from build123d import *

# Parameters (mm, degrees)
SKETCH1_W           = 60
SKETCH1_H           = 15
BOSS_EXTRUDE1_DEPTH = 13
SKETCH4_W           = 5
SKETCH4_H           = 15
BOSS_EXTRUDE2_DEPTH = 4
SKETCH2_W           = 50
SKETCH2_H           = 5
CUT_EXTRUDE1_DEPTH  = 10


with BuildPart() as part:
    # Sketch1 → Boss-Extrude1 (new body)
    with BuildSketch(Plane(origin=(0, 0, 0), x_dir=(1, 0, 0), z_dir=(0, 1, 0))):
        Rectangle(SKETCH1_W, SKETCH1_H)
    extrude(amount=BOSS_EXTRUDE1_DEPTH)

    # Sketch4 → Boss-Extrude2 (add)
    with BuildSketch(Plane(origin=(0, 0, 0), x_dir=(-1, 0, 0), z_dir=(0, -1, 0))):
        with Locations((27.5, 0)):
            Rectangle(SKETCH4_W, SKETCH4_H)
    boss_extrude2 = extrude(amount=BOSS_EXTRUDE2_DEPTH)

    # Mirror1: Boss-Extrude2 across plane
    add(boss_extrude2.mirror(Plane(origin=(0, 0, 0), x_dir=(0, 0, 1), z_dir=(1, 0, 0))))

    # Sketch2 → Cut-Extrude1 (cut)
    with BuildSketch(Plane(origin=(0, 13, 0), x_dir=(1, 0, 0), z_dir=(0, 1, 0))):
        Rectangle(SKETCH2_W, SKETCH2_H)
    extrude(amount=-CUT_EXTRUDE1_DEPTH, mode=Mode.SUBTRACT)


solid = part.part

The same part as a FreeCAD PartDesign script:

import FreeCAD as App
import Part
import Sketcher
Q = App.Units.Quantity


def add_polygon(sketch, points):
    """Adds a closed chain of lines whose ends are joined by coincident constraints."""
    first, n = sketch.GeometryCount, len(points)
    for a, b in zip(points, points[1:] + points[:1]):
        sketch.addGeometry(Part.LineSegment(App.Vector(*a, 0), App.Vector(*b, 0)), False)
    for i in range(n):
        sketch.addConstraint(Sketcher.Constraint("Coincident", first + i, 2, first + (i + 1) % n, 1))

doc = App.newDocument("Part")
params = doc.addObject("Spreadsheet::Sheet", "Params")
for row, (alias, value) in enumerate([
    ("sketch1_width", "60 mm"),
    ("sketch1_height", "15 mm"),
    ("pad1_length", "13 mm"),
    ("sketch2_width", "5 mm"),
    ("sketch2_height", "15 mm"),
    ("pad2_length", "4 mm"),
    ("sketch3_width", "50 mm"),
    ("sketch3_height", "5 mm"),
    ("pocket1_length", "10 mm"),
], start=1):
    params.set(f"A{row}", alias)
    params.set(f"B{row}", "=" + value)
    params.setAlias(f"B{row}", alias)

body = doc.addObject("PartDesign::Body", "Body")

sketch1 = body.newObject("Sketcher::SketchObject", "Sketch")
sketch1.AttachmentSupport = (doc.getObject("XZ_Plane"), [""])
sketch1.MapMode = "FlatFace"
add_polygon(sketch1, [(-30, -8), (-30, 8), (30, 8), (30, -8)])
sketch1.addConstraint(Sketcher.Constraint("Vertical", 0))
sketch1.addConstraint(Sketcher.Constraint("Horizontal", 1))
sketch1.addConstraint(Sketcher.Constraint("Vertical", 2))
sketch1.addConstraint(Sketcher.Constraint("Horizontal", 3))
sketch1.addConstraint(Sketcher.Constraint("Symmetric", 0, 2, 2, 2, -1, 1))
sketch1.addConstraint(Sketcher.Constraint("DistanceX", 1, 1, 1, 2, Q("60 mm")))
sketch1.addConstraint(Sketcher.Constraint("DistanceY", 0, 1, 0, 2, Q("15 mm")))
sketch1.setExpression("Constraints[9]", "Params.sketch1_width")
sketch1.setExpression("Constraints[10]", "Params.sketch1_height")
pad1 = body.newObject("PartDesign::Pad", "Pad")
pad1.Profile = sketch1
pad1.setExpression("Length", "Params.pad1_length")
pad1.Reversed = True

sketch2 = body.newObject("Sketcher::SketchObject", "Sketch001")
sketch2.AttachmentSupport = (doc.getObject("XZ_Plane"), [""])
sketch2.MapMode = "FlatFace"
add_polygon(sketch2, [(-25, -8), (-25, 8), (-30, 8), (-30, -8)])
sketch2.addConstraint(Sketcher.Constraint("Vertical", 0))
sketch2.addConstraint(Sketcher.Constraint("Horizontal", 1))
sketch2.addConstraint(Sketcher.Constraint("Vertical", 2))
sketch2.addConstraint(Sketcher.Constraint("Horizontal", 3))
sketch2.addConstraint(Sketcher.Constraint("DistanceX", 1, 2, 1, 1, Q("5 mm")))
sketch2.addConstraint(Sketcher.Constraint("DistanceY", 0, 1, 0, 2, Q("15 mm")))
sketch2.addConstraint(Sketcher.Constraint("DistanceX", 0, 2, -1, 1, Q("25 mm")))
sketch2.addConstraint(Sketcher.Constraint("DistanceY", -1, 1, 0, 2, Q("7.5 mm")))
sketch2.setExpression("Constraints[8]", "Params.sketch2_width")
sketch2.setExpression("Constraints[9]", "Params.sketch2_height")
pad2 = body.newObject("PartDesign::Pad", "Pad001")
pad2.Profile = sketch2
pad2.setExpression("Length", "Params.pad2_length")
doc.recompute()

mirrored = body.newObject("PartDesign::Mirrored", "Mirrored")
mirrored.Originals = [pad2]
mirrored.MirrorPlane = (doc.getObject("YZ_Plane"), [""])
body.Tip = mirrored

sketch3 = body.newObject("Sketcher::SketchObject", "Sketch002")
sketch3.AttachmentSupport = (doc.getObject("XZ_Plane"), [""])
sketch3.MapMode = "FlatFace"
sketch3.AttachmentOffset = App.Placement(App.Vector(0, 0, -13), App.Rotation())
add_polygon(sketch3, [(-25, -2), (-25, 2), (25, 2), (25, -2)])
sketch3.addConstraint(Sketcher.Constraint("Vertical", 0))
sketch3.addConstraint(Sketcher.Constraint("Horizontal", 1))
sketch3.addConstraint(Sketcher.Constraint("Vertical", 2))
sketch3.addConstraint(Sketcher.Constraint("Horizontal", 3))
sketch3.addConstraint(Sketcher.Constraint("Symmetric", 0, 2, 2, 2, -1, 1))
sketch3.addConstraint(Sketcher.Constraint("DistanceX", 1, 1, 1, 2, Q("50 mm")))
sketch3.addConstraint(Sketcher.Constraint("DistanceY", 0, 1, 0, 2, Q("5 mm")))
sketch3.setExpression("Constraints[9]", "Params.sketch3_width")
sketch3.setExpression("Constraints[10]", "Params.sketch3_height")
pocket1 = body.newObject("PartDesign::Pocket", "Pocket")
pocket1.Profile = sketch3
pocket1.setExpression("Length", "Params.pocket1_length")
pocket1.Reversed = True

doc.recompute()
